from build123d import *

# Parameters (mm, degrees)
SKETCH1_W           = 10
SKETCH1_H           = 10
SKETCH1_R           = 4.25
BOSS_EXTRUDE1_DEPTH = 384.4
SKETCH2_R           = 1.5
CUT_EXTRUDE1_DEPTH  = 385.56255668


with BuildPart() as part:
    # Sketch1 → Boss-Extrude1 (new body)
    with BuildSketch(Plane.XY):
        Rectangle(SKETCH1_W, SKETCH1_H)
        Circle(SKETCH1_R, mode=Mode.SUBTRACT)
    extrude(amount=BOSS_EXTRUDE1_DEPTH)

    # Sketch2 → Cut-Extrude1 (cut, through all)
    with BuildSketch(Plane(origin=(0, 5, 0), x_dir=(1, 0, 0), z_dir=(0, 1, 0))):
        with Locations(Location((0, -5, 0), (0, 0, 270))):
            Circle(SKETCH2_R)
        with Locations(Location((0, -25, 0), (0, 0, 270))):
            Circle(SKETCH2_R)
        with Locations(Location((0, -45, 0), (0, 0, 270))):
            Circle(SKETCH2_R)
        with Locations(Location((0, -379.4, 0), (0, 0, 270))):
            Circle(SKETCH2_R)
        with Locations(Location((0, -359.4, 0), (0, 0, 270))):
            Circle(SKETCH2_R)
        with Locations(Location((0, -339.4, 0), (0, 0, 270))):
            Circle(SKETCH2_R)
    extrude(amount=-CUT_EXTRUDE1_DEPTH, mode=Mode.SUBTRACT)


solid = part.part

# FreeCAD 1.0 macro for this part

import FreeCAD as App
import Part
import Sketcher
Q = App.Units.Quantity


def add_polygon(sketch, points):
    """Adds a closed chain of lines whose ends are joined by coincident constraints."""
    first, n = sketch.GeometryCount, len(points)
    for a, b in zip(points, points[1:] + points[:1]):
        sketch.addGeometry(Part.LineSegment(App.Vector(*a, 0), App.Vector(*b, 0)), False)
    for i in range(n):
        sketch.addConstraint(Sketcher.Constraint("Coincident", first + i, 2, first + (i + 1) % n, 1))

doc = App.newDocument("Part")
body = doc.addObject("PartDesign::Body", "Body")

# Sketch on XY plane
sketch1 = doc.addObject("Sketcher::SketchObject", "Sketch")
body.addObject(sketch1)
sketch1.AttachmentSupport = (doc.XY_Plane, [""])
sketch1.MapMode = "FlatFace"
add_polygon(sketch1, [(-5, 5), (-5, -5), (5, -5), (5, 5)])  # lines 0-3
sketch1.addGeometry(Part.Circle(App.Vector(0, 0, 0), App.Vector(0, 0, 1), 4.2), False)  # 4
sketch1.addConstraint([
    Sketcher.Constraint("Vertical", 0),
    Sketcher.Constraint("Horizontal", 1),
    Sketcher.Constraint("Vertical", 2),
    Sketcher.Constraint("Horizontal", 3),
    Sketcher.Constraint("Coincident", 4, 3, -1, 1),
    Sketcher.Constraint("Symmetric", 0, 2, 2, 2, -1, 1),
    Sketcher.Constraint("Equal", 3, 0),
    Sketcher.Constraint("Diameter", 4, Q("8.5 mm")),
    Sketcher.Constraint("DistanceX", 1, 1, 1, 2, Q("10 mm")),
])
pad1 = doc.addObject("PartDesign::Pad", "Pad")
body.addObject(pad1)
pad1.Profile = sketch1
pad1.Length = 384.4

# Sketch on XZ plane
sketch2 = doc.addObject("Sketcher::SketchObject", "Sketch001")
body.addObject(sketch2)
sketch2.AttachmentSupport = (doc.XZ_Plane, [""])
sketch2.MapMode = "FlatFace"
sketch2.AttachmentOffset = App.Placement(App.Vector(0, 0, -5), App.Rotation())
sketch2.addGeometry([
    Part.Circle(App.Vector(0, 5, 0), App.Vector(0, 0, 1), 1.5),  # 0
    Part.Circle(App.Vector(0, 25, 0), App.Vector(0, 0, 1), 1.5),  # 1
    Part.Circle(App.Vector(0, 45, 0), App.Vector(0, 0, 1), 1.5),  # 2
    Part.Circle(App.Vector(0, 379.4, 0), App.Vector(0, 0, 1), 1.5),  # 3
    Part.Circle(App.Vector(0, 359.4, 0), App.Vector(0, 0, 1), 1.5),  # 4
    Part.Circle(App.Vector(0, 339.4, 0), App.Vector(0, 0, 1), 1.5),  # 5
], False)
sketch2.addConstraint([
    Sketcher.Constraint("Equal", 0, 1),
    Sketcher.Constraint("Equal", 1, 2),
    Sketcher.Constraint("Equal", 2, 3),
    Sketcher.Constraint("Equal", 3, 4),
    Sketcher.Constraint("Equal", 4, 5),
    Sketcher.Constraint("PointOnObject", 0, 3, -2),
    Sketcher.Constraint("PointOnObject", 1, 3, -2),
    Sketcher.Constraint("PointOnObject", 2, 3, -2),
    Sketcher.Constraint("PointOnObject", 3, 3, -2),
    Sketcher.Constraint("PointOnObject", 4, 3, -2),
    Sketcher.Constraint("PointOnObject", 5, 3, -2),
    Sketcher.Constraint("Diameter", 0, Q("3 mm")),
    Sketcher.Constraint("DistanceY", -1, 1, 0, 3, Q("5 mm")),
    Sketcher.Constraint("DistanceY", -1, 1, 1, 3, Q("25 mm")),
    Sketcher.Constraint("DistanceY", -1, 1, 2, 3, Q("45 mm")),
    Sketcher.Constraint("DistanceY", 4, 3, 3, 3, Q("20 mm")),
    Sketcher.Constraint("DistanceY", 5, 3, 4, 3, Q("20 mm")),
    Sketcher.Constraint("DistanceY", -1, 1, 3, 3, Q("379.4 mm")),
])
pocket1 = doc.addObject("PartDesign::Pocket", "Pocket")
body.addObject(pocket1)
pocket1.Profile = sketch2
pocket1.Type = "ThroughAll"
pocket1.Reversed = True

doc.recompute()
